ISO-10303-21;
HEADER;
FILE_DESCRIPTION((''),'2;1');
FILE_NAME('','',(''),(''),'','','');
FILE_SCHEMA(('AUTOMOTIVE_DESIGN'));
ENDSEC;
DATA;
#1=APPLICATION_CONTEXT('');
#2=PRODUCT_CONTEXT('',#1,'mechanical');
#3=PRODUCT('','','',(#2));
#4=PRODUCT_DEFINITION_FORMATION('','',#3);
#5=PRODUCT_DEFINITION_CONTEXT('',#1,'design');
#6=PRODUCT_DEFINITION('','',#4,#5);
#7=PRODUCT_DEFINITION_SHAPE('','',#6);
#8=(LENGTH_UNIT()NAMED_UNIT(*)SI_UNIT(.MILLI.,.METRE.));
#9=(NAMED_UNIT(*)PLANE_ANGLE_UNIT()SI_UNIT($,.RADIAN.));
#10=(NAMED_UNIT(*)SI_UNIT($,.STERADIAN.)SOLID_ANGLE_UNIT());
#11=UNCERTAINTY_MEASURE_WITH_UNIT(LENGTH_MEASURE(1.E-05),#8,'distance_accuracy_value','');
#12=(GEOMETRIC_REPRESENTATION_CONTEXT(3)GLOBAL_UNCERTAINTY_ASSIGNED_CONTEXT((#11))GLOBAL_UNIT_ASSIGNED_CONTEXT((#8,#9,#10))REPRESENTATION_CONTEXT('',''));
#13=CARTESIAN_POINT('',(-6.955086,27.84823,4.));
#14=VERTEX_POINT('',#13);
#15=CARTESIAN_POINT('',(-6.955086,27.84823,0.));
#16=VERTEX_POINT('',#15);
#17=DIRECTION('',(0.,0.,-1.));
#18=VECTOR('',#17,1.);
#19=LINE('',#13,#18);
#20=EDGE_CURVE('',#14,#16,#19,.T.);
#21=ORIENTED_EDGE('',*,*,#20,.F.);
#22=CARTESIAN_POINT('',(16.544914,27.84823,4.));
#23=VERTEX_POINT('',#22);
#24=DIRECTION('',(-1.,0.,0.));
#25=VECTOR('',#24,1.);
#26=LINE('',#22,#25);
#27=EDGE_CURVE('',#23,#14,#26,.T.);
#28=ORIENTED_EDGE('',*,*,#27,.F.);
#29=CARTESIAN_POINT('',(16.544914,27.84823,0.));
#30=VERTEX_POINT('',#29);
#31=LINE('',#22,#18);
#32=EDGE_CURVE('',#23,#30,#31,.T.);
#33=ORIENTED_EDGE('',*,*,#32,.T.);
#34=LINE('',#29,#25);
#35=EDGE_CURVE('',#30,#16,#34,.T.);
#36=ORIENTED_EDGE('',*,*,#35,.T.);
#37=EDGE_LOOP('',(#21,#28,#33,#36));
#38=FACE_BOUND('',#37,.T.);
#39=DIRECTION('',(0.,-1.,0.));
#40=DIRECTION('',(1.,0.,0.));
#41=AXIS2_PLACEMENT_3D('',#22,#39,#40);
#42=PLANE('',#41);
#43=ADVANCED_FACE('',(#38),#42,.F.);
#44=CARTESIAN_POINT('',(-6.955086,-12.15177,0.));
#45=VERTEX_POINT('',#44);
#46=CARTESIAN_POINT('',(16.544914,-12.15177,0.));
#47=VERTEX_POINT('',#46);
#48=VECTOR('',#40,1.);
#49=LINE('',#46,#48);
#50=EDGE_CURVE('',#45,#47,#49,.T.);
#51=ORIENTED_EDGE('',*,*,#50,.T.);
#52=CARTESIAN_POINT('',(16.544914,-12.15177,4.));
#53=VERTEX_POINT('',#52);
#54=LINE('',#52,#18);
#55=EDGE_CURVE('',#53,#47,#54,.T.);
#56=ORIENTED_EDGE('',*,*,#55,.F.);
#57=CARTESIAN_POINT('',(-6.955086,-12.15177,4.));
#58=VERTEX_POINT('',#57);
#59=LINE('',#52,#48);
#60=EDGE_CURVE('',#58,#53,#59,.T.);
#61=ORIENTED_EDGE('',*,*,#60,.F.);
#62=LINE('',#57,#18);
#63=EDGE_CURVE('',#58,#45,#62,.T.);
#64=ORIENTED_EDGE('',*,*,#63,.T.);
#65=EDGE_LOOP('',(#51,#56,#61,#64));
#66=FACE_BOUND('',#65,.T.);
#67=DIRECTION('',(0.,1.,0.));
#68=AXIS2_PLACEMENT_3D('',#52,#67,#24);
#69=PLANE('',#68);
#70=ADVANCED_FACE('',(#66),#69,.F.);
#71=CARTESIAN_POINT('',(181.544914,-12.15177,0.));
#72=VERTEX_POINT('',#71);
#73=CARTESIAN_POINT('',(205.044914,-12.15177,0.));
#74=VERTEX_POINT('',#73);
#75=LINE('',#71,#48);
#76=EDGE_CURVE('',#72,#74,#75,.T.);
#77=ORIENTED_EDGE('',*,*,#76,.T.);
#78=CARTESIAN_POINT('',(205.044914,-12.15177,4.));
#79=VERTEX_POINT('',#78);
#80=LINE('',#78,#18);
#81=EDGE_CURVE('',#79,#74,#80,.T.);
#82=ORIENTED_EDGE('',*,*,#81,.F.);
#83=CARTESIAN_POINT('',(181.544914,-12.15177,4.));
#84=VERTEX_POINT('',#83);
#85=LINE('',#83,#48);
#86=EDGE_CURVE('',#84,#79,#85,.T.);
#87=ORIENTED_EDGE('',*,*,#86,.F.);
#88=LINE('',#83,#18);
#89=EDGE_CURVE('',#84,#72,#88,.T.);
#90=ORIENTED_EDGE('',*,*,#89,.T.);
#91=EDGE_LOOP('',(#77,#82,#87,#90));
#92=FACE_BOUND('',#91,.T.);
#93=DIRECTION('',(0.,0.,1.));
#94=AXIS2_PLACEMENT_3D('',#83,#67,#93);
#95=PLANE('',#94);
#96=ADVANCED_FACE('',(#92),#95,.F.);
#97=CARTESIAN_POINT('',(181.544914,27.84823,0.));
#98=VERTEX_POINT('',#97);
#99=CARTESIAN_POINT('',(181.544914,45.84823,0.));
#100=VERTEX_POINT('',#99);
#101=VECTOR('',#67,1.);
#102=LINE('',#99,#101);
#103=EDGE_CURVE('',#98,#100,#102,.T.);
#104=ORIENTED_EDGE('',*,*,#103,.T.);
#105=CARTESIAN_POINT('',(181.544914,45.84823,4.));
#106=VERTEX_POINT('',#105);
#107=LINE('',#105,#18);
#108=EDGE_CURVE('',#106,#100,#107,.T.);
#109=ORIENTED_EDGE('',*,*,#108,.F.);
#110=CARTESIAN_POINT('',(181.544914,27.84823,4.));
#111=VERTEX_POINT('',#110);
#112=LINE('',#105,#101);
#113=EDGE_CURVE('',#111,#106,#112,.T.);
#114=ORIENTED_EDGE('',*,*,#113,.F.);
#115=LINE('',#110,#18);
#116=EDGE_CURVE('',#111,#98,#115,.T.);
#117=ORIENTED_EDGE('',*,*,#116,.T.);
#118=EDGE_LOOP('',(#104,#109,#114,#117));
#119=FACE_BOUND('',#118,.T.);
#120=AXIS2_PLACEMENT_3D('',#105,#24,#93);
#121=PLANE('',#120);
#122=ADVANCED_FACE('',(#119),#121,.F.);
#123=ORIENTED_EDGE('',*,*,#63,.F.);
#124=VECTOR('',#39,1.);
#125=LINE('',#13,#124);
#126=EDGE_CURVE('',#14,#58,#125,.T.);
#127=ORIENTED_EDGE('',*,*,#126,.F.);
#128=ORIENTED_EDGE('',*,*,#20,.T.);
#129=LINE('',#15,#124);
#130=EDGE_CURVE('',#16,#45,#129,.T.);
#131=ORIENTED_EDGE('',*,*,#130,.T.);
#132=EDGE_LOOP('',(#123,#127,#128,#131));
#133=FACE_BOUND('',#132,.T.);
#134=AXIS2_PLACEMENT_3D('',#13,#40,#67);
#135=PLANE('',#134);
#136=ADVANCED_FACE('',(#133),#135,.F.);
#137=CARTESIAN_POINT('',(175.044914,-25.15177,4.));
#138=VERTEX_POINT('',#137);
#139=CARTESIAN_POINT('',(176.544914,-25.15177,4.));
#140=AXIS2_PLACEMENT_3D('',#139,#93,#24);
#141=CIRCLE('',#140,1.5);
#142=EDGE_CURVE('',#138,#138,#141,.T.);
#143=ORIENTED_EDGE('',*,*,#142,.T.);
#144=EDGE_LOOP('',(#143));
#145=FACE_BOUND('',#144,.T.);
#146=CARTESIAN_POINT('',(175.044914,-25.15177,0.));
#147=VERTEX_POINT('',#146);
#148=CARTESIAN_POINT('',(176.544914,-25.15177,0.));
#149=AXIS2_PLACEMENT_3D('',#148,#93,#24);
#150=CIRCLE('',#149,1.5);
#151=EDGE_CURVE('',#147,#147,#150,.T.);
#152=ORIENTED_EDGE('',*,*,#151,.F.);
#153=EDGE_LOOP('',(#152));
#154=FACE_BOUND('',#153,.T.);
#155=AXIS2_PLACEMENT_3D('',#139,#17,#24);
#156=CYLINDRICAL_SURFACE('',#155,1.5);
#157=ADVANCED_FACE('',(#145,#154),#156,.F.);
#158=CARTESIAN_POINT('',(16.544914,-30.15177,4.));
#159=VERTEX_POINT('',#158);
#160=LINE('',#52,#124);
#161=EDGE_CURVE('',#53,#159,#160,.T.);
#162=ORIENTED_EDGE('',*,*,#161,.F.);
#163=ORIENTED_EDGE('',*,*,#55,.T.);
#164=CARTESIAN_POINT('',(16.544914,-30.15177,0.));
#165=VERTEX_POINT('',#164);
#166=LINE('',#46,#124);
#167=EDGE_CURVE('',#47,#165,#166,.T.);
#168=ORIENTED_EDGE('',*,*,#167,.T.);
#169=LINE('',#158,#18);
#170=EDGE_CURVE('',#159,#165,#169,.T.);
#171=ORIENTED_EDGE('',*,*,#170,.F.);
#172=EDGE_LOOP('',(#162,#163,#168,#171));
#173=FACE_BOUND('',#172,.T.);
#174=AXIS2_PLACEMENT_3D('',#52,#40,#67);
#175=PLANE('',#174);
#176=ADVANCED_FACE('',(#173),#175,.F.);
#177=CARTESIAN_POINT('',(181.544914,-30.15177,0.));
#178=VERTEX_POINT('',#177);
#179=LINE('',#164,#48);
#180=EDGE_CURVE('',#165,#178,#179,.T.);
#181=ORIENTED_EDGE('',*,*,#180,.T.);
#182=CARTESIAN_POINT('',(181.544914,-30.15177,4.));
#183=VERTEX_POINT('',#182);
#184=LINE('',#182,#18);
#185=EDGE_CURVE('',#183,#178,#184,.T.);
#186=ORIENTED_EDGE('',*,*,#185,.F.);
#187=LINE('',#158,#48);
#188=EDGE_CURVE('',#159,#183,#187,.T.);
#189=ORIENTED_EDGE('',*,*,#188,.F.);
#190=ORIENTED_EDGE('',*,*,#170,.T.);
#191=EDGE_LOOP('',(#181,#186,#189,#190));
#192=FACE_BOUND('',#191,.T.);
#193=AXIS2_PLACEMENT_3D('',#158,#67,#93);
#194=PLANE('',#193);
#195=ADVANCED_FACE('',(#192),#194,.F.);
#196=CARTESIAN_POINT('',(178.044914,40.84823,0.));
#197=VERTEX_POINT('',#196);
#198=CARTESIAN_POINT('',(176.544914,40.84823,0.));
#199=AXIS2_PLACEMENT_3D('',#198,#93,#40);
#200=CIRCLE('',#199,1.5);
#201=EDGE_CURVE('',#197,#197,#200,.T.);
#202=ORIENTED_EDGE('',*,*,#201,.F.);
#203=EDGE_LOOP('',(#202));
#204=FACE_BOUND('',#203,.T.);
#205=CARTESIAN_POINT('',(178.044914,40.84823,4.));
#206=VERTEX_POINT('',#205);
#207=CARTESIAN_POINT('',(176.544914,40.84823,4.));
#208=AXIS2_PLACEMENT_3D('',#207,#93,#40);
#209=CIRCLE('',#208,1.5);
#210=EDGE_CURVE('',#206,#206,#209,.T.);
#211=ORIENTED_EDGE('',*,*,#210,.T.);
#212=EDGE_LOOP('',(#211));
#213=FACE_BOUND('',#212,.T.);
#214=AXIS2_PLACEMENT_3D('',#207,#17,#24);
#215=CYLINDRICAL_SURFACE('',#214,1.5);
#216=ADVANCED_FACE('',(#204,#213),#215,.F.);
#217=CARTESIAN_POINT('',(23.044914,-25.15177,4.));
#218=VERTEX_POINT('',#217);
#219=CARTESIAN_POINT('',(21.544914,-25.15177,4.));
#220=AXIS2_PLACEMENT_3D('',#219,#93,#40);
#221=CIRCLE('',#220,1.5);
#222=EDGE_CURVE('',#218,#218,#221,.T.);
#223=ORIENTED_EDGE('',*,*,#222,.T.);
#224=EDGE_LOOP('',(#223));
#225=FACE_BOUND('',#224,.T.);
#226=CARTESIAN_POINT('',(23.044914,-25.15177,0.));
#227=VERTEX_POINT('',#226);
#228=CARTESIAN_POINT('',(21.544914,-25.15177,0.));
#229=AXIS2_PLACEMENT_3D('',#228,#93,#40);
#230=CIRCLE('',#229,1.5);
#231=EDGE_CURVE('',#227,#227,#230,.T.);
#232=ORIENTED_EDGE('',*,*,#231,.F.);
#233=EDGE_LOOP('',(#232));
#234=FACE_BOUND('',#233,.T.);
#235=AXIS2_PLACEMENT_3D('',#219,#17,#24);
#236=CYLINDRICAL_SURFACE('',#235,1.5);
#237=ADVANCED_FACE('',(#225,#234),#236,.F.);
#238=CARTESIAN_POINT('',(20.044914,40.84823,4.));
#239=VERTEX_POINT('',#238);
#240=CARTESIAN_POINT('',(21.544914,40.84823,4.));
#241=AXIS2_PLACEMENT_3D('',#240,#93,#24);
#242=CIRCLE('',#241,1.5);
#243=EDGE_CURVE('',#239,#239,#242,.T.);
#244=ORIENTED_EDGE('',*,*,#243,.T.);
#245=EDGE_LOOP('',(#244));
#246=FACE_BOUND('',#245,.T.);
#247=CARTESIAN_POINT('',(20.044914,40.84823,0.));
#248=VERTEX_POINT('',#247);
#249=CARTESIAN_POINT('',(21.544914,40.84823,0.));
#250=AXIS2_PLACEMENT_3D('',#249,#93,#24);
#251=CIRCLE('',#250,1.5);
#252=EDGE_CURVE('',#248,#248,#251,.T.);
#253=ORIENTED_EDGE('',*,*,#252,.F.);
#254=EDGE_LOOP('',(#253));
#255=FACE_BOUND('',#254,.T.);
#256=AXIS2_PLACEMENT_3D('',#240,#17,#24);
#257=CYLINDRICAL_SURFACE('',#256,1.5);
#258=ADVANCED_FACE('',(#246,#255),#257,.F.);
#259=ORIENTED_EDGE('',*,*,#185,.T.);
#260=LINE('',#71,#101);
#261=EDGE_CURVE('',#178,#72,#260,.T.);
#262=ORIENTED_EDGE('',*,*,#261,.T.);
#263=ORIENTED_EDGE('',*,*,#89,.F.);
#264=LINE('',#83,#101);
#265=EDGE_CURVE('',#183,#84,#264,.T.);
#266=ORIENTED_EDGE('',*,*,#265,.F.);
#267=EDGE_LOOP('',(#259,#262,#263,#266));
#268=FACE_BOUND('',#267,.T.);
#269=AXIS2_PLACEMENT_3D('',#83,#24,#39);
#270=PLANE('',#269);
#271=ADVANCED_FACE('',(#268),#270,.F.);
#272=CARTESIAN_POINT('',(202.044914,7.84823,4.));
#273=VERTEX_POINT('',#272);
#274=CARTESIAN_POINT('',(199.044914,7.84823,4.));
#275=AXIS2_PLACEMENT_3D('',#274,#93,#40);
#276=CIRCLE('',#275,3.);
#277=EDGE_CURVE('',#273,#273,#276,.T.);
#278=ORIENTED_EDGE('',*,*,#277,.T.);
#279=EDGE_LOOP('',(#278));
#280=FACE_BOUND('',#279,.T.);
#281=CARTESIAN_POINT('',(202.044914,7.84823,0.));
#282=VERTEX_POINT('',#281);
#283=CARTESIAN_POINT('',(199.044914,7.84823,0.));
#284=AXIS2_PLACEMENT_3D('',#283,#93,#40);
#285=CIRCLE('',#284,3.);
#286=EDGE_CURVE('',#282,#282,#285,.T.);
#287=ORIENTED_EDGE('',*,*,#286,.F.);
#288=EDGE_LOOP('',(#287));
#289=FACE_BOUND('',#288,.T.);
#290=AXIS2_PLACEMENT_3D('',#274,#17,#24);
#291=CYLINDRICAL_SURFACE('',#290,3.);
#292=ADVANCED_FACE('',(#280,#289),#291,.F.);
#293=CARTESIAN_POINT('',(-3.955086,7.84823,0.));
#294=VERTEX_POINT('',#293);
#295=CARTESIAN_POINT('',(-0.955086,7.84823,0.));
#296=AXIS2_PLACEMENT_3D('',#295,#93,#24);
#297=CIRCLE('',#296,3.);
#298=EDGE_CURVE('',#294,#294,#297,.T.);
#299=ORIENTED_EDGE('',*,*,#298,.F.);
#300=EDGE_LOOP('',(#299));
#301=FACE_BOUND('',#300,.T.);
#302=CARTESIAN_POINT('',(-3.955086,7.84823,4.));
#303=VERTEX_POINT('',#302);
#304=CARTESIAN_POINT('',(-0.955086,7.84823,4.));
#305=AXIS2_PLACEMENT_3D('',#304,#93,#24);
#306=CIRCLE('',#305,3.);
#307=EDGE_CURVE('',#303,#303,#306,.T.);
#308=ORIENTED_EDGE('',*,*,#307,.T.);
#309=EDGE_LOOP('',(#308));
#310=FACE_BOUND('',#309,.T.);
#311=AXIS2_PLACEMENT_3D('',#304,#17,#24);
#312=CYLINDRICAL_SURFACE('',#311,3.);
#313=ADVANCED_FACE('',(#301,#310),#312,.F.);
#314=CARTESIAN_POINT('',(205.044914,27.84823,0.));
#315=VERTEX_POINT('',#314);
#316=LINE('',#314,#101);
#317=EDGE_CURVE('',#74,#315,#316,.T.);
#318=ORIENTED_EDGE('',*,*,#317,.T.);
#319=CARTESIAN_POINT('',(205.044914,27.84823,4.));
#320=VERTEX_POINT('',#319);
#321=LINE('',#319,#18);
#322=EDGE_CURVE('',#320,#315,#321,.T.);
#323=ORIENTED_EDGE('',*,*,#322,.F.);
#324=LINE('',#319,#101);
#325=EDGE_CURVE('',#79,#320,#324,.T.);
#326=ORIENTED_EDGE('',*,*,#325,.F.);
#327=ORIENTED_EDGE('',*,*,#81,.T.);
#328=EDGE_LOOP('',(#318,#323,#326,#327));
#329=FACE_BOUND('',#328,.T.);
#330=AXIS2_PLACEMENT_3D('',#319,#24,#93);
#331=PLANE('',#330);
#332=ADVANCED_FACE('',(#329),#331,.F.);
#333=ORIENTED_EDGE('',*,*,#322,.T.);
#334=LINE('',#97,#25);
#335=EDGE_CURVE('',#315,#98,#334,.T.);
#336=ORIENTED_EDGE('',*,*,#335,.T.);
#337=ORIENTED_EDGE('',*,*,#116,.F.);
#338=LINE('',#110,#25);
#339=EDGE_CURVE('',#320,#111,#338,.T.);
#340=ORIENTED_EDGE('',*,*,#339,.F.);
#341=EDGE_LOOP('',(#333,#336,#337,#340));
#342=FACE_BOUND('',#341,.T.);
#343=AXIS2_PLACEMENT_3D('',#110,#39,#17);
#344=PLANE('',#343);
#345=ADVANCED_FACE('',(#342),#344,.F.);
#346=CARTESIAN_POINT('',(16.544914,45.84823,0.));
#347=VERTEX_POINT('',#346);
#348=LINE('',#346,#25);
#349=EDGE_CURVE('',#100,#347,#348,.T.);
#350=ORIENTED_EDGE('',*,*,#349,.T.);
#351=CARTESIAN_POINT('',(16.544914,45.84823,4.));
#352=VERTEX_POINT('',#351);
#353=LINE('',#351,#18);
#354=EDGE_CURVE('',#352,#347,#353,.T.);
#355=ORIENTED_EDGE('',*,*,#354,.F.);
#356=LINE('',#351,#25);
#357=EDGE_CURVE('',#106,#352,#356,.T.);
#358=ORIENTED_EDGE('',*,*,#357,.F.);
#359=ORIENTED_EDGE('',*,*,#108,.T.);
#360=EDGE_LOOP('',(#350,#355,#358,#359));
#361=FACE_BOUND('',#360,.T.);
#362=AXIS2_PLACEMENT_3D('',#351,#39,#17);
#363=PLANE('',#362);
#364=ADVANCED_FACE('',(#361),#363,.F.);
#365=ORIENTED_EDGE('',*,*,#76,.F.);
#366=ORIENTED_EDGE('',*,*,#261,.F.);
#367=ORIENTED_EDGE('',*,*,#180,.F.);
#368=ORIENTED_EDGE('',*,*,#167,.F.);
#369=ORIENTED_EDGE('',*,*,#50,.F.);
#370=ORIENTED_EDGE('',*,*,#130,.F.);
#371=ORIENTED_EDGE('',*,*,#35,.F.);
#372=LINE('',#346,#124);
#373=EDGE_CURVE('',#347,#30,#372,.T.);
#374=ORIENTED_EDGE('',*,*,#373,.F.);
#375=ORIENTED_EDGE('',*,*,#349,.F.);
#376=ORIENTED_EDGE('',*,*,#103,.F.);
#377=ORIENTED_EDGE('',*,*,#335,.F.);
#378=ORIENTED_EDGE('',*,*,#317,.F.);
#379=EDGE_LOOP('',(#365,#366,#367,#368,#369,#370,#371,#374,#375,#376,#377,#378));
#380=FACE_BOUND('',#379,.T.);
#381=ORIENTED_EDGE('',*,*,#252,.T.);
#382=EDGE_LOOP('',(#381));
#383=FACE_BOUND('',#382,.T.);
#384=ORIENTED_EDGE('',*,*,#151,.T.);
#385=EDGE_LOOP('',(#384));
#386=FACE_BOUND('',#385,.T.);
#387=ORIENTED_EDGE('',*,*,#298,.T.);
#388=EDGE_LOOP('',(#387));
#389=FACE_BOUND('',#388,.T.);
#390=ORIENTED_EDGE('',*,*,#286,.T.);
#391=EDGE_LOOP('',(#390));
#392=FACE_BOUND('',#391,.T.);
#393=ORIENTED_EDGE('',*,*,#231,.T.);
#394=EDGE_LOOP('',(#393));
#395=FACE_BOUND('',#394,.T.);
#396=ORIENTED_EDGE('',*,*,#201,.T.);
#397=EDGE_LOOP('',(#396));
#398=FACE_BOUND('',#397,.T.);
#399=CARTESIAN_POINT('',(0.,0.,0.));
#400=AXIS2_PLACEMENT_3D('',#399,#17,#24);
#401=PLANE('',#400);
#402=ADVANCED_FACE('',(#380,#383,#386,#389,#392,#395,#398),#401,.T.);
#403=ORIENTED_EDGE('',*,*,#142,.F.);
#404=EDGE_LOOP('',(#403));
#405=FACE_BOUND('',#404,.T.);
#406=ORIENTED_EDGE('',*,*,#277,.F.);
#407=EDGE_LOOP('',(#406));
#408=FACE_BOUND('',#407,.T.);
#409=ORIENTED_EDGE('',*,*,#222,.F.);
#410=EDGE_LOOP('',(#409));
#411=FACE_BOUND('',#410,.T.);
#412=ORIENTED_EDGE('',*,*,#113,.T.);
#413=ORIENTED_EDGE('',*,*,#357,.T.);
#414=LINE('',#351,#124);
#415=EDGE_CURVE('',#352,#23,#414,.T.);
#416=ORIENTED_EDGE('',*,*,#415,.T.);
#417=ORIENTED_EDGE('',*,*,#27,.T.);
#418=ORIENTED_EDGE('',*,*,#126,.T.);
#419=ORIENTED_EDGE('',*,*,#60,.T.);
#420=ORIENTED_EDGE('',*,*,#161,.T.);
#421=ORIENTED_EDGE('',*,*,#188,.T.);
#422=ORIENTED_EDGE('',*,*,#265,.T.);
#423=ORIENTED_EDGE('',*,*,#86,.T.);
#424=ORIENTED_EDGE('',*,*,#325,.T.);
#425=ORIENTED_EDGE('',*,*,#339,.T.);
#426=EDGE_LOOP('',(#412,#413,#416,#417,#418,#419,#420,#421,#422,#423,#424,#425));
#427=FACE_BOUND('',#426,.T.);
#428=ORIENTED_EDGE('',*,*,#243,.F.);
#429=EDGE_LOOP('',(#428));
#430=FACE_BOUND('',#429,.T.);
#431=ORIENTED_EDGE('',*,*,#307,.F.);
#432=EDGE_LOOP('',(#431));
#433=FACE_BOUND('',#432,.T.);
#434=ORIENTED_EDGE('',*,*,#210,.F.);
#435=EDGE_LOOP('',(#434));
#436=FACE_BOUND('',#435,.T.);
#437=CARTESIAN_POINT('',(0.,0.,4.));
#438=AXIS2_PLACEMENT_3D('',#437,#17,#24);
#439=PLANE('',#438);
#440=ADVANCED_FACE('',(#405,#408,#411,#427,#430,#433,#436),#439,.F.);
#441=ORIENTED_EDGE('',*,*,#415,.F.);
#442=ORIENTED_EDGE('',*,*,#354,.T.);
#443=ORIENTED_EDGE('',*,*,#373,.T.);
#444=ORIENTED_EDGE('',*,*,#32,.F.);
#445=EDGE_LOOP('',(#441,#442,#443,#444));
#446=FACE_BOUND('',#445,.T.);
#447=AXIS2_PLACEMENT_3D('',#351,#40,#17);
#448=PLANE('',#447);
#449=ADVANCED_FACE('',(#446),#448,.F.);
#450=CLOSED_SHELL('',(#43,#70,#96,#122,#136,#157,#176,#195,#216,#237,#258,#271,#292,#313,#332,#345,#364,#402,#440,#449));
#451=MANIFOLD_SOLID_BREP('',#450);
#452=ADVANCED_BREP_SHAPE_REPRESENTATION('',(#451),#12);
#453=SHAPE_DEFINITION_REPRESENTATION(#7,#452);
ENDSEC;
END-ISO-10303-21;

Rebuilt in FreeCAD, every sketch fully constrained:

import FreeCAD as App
import Part
import Sketcher

V = App.Vector


def add_polygon(sketch, points):
    """Adds a closed chain of lines whose ends are joined by coincident constraints."""
    first, n = sketch.GeometryCount, len(points)
    for a, b in zip(points, points[1:] + points[:1]):
        sketch.addGeometry(Part.LineSegment(App.Vector(*a, 0), App.Vector(*b, 0)), False)
    for i in range(n):
        sketch.addConstraint(Sketcher.Constraint("Coincident", first + i, 2, first + (i + 1) % n, 1))

doc = App.newDocument("Part")
body = doc.addObject("PartDesign::Body", "Body")

sketch1 = body.newObject("Sketcher::SketchObject", "Sketch")
sketch1.AttachmentSupport = (doc.getObject("XY_Plane"), [""])
sketch1.MapMode = "FlatFace"
add_polygon(sketch1, [(181.544914, 45.84823), (16.544914, 45.84823), (16.544914, 27.84823), (-6.955086, 27.84823), (-6.955086, -12.15177), (16.544914, -12.15177), (16.544914, -30.15177), (181.544914, -30.15177), (181.544914, -12.15177), (205.044914, -12.15177), (205.044914, 27.84823), (181.544914, 27.84823)])
sketch1.addGeometry(Part.Circle(V(176.544914, -25.15177, 0), V(0, 0, 1), 1.5), False)
sketch1.addGeometry(Part.Circle(V(21.544914, -25.15177, 0), V(0, 0, 1), 1.5), False)
sketch1.addGeometry(Part.Circle(V(199.044914, 7.84823, 0), V(0, 0, 1), 3), False)
sketch1.addGeometry(Part.Circle(V(176.544914, 40.84823, 0), V(0, 0, 1), 1.5), False)
sketch1.addGeometry(Part.Circle(V(-0.955086, 7.84823, 0), V(0, 0, 1), 3), False)
sketch1.addGeometry(Part.Circle(V(21.544914, 40.84823, 0), V(0, 0, 1), 1.5), False)
sketch1.addConstraint([
    Sketcher.Constraint("Horizontal", 0),
    Sketcher.Constraint("Vertical", 1),
    Sketcher.Constraint("Horizontal", 2),
    Sketcher.Constraint("Vertical", 3),
    Sketcher.Constraint("Horizontal", 4),
    Sketcher.Constraint("Vertical", 5),
    Sketcher.Constraint("Horizontal", 6),
    Sketcher.Constraint("Vertical", 7),
    Sketcher.Constraint("Horizontal", 8),
    Sketcher.Constraint("Vertical", 9),
    Sketcher.Constraint("Horizontal", 10),
    Sketcher.Constraint("Vertical", 11),
    Sketcher.Constraint("Equal", 12, 13),
    Sketcher.Constraint("Equal", 13, 15),
    Sketcher.Constraint("Equal", 14, 16),
    Sketcher.Constraint("Equal", 15, 17),
    Sketcher.Constraint("Horizontal", 12, 3, 13, 3),
    Sketcher.Constraint("Horizontal", 14, 3, 16, 3),
    Sketcher.Constraint("Horizontal", 15, 3, 17, 3),
    Sketcher.Constraint("Horizontal", 4, 2, 7, 2),
    Sketcher.Constraint("Horizontal", 2, 2, 9, 2),
    Sketcher.Constraint("Vertical", 12, 3, 15, 3),
    Sketcher.Constraint("Vertical", 13, 3, 17, 3),
    Sketcher.Constraint("Vertical", 1, 2, 4, 2),
    Sketcher.Constraint("Vertical", 7, 2, 10, 2),
    Sketcher.Constraint("Equal", 4, 8),
    Sketcher.Constraint("Equal", 1, 5),
    Sketcher.Constraint("Diameter", 12, 3.0),
    Sketcher.Constraint("Diameter", 14, 6.0),
    Sketcher.Constraint("DistanceX", 0, 2, 0, 1, 165.0),
    Sketcher.Constraint("DistanceY", 1, 2, 1, 1, 18.0),
    Sketcher.Constraint("DistanceY", 3, 2, 3, 1, 40.0),
    Sketcher.Constraint("DistanceX", 2, 2, 2, 1, 23.5),
    Sketcher.Constraint("DistanceX", 13, 3, 12, 3, 155.0),
    Sketcher.Constraint("DistanceY", 12, 3, 14, 3, 33.0),
    Sketcher.Constraint("DistanceY", 14, 3, 15, 3, 33.0),
    Sketcher.Constraint("DistanceX", 16, 3, 14, 3, 200.0),
    Sketcher.Constraint("DistanceX", 0, 2, 17, 3, 5.0),
    Sketcher.Constraint("DistanceY", 17, 3, 0, 2, 5.0),
    Sketcher.Constraint("DistanceX", 2, 2, 16, 3, 6.0),
    Sketcher.Constraint("DistanceY", 12, 3, -1, 1, 25.15177),
    Sketcher.Constraint("DistanceX", -1, 1, 12, 3, 176.544914),
])
pad1 = body.newObject("PartDesign::Pad", "Pad")
pad1.Profile = sketch1
pad1.Length = 4

doc.recompute()
